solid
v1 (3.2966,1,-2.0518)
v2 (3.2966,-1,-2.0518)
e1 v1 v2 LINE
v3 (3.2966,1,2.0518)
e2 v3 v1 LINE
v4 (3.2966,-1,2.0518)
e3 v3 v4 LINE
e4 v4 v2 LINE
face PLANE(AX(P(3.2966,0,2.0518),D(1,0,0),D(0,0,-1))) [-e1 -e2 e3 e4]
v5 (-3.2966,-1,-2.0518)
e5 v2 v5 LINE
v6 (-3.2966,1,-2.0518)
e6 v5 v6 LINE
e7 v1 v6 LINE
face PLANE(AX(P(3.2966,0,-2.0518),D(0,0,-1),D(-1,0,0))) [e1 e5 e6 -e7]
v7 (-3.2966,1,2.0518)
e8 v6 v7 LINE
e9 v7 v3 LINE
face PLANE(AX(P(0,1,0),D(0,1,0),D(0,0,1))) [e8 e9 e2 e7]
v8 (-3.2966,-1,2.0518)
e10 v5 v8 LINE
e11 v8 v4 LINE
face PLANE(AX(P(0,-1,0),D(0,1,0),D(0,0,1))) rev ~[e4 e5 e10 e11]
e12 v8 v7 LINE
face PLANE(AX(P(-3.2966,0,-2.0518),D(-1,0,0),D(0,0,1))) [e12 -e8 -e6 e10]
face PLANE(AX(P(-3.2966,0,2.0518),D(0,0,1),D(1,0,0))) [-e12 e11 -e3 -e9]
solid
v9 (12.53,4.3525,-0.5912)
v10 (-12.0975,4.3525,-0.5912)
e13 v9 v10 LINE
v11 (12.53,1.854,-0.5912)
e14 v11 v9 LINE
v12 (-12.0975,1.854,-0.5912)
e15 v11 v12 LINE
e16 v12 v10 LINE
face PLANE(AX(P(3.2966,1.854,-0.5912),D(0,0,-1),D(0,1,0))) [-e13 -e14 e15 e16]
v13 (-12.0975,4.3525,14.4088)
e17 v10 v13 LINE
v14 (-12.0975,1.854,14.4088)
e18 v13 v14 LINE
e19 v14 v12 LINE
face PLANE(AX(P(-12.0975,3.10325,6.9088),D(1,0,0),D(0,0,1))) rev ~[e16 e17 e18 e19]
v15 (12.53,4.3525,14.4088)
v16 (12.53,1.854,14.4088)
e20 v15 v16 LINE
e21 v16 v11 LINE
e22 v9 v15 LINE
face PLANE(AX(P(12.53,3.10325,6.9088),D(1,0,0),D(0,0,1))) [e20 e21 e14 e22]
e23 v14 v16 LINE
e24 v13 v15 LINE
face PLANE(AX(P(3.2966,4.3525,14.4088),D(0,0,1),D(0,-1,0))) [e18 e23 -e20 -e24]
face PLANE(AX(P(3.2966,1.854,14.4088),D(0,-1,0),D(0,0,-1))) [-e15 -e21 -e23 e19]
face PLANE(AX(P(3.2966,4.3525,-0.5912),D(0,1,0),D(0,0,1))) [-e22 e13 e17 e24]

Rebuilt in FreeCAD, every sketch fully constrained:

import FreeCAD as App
import Part
import Sketcher
from FreeCAD import Vector

doc = App.newDocument("Part")
body = doc.addObject("PartDesign::Body", "Body")
body.AllowCompound = True

# Sketch on XZ plane
sketch1 = body.newObject("Sketcher::SketchObject", "Sketch")
sketch1.AttachmentSupport = (doc.getObject("XZ_Plane"), [""])
sketch1.MapMode = "FlatFace"
sketch1.addGeometry(Part.LineSegment(Vector(-3.2966, -2.0518, 0), Vector(3.2966, -2.0518, 0)), False)
sketch1.addGeometry(Part.LineSegment(Vector(3.2966, -2.0518, 0), Vector(3.2966, 2.0518, 0)), False)
sketch1.addGeometry(Part.LineSegment(Vector(3.2966, 2.0518, 0), Vector(-3.2966, 2.0518, 0)), False)
sketch1.addGeometry(Part.LineSegment(Vector(-3.2966, 2.0518, 0), Vector(-3.2966, -2.0518, 0)), False)
sketch1.addConstraint(Sketcher.Constraint("Coincident", 0, 2, 1, 1))
sketch1.addConstraint(Sketcher.Constraint("Coincident", 1, 2, 2, 1))
sketch1.addConstraint(Sketcher.Constraint("Coincident", 2, 2, 3, 1))
sketch1.addConstraint(Sketcher.Constraint("Coincident", 3, 2, 0, 1))
sketch1.addConstraint(Sketcher.Constraint("Horizontal", 0))
sketch1.addConstraint(Sketcher.Constraint("Vertical", 1))
sketch1.addConstraint(Sketcher.Constraint("Horizontal", 2))
sketch1.addConstraint(Sketcher.Constraint("Vertical", 3))
sketch1.addConstraint(Sketcher.Constraint("Symmetric", 0, 2, 2, 2, -1, 1))
sketch1.addConstraint(Sketcher.Constraint("DistanceX", 0, 1, 0, 2, 6.5932))
sketch1.addConstraint(Sketcher.Constraint("DistanceY", 1, 1, 1, 2, 4.1036))
pad1 = body.newObject("PartDesign::Pad", "Pad")
pad1.Profile = sketch1
pad1.Length = 2
pad1.Midplane = True

# Sketch on YZ plane
sketch2 = body.newObject("Sketcher::SketchObject", "Sketch001")
sketch2.AttachmentSupport = (doc.getObject("YZ_Plane"), [""])
sketch2.MapMode = "FlatFace"
sketch2.AttachmentOffset = App.Placement(Vector(0, 0, 3.2966), App.Rotation())
sketch2.addGeometry(Part.LineSegment(Vector(1.854, -0.5912, 0), Vector(4.3525, -0.5912, 0)), False)
sketch2.addGeometry(Part.LineSegment(Vector(4.3525, -0.5912, 0), Vector(4.3525, 14.4088, 0)), False)
sketch2.addGeometry(Part.LineSegment(Vector(4.3525, 14.4088, 0), Vector(1.854, 14.4088, 0)), False)
sketch2.addGeometry(Part.LineSegment(Vector(1.854, 14.4088, 0), Vector(1.854, -0.5912, 0)), False)
sketch2.addConstraint(Sketcher.Constraint("Coincident", 0, 2, 1, 1))
sketch2.addConstraint(Sketcher.Constraint("Coincident", 1, 2, 2, 1))
sketch2.addConstraint(Sketcher.Constraint("Coincident", 2, 2, 3, 1))
sketch2.addConstraint(Sketcher.Constraint("Coincident", 3, 2, 0, 1))
sketch2.addConstraint(Sketcher.Constraint("Horizontal", 0))
sketch2.addConstraint(Sketcher.Constraint("Vertical", 1))
sketch2.addConstraint(Sketcher.Constraint("Horizontal", 2))
sketch2.addConstraint(Sketcher.Constraint("Vertical", 3))
sketch2.addConstraint(Sketcher.Constraint("DistanceY", 1, 1, 1, 2, 15.0))
sketch2.addConstraint(Sketcher.Constraint("DistanceX", 0, 1, 0, 2, 2.4985))
sketch2.addConstraint(Sketcher.Constraint("DistanceX", -1, 1, 2, 2, 1.854))
sketch2.addConstraint(Sketcher.Constraint("DistanceY", 0, 2, -1, 1, 0.5912))
pad2 = body.newObject("PartDesign::Pad", "Pad001")
pad2.Profile = sketch2
pad2.Type = "TwoLengths"
pad2.Length = 15.3941
pad2.Length2 = 9.2334
pad2.Reversed = True

doc.recompute()
